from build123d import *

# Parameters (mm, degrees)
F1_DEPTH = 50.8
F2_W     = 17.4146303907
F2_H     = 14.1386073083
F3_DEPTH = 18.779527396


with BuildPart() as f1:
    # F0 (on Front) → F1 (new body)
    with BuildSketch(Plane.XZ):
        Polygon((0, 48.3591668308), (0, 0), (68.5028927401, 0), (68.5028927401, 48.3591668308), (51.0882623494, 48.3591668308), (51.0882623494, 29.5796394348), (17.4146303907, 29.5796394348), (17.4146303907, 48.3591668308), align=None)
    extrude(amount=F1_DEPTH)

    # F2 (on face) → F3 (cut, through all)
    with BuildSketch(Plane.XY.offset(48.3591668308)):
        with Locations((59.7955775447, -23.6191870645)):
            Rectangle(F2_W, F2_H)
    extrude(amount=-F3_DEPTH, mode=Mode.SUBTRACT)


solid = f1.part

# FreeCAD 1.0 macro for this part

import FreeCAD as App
import Part
import Sketcher

V = App.Vector
Q = App.Units.Quantity


def add_polygon(sketch, points):
    """Adds a closed chain of lines whose ends are joined by coincident constraints."""
    first, n = sketch.GeometryCount, len(points)
    for a, b in zip(points, points[1:] + points[:1]):
        sketch.addGeometry(Part.LineSegment(App.Vector(*a, 0), App.Vector(*b, 0)), False)
    for i in range(n):
        sketch.addConstraint(Sketcher.Constraint("Coincident", first + i, 2, first + (i + 1) % n, 1))

doc = App.newDocument("Part")
body = doc.addObject("PartDesign::Body", "Body")

# Sketch on XZ plane
sketch1 = body.newObject("Sketcher::SketchObject", "Sketch")
sketch1.AttachmentSupport = (doc.getObject("XZ_Plane"), [""])
sketch1.MapMode = "FlatFace"
add_polygon(sketch1, [(0, 48.359167), (0, 0), (68.502893, 0), (68.502893, 48.359167), (51.088262, 48.359167), (51.088262, 29.579639), (17.41463, 29.579639), (17.41463, 48.359167)])  # lines 0-7
sketch1.addConstraint(Sketcher.Constraint("Vertical", 0))
sketch1.addConstraint(Sketcher.Constraint("Horizontal", 1))
sketch1.addConstraint(Sketcher.Constraint("Vertical", 2))
sketch1.addConstraint(Sketcher.Constraint("Horizontal", 3))
sketch1.addConstraint(Sketcher.Constraint("Vertical", 4))
sketch1.addConstraint(Sketcher.Constraint("Horizontal", 5))
sketch1.addConstraint(Sketcher.Constraint("Vertical", 6))
sketch1.addConstraint(Sketcher.Constraint("Horizontal", 7))
sketch1.addConstraint(Sketcher.Constraint("Coincident", 0, 2, -1, 1))
sketch1.addConstraint(Sketcher.Constraint("Horizontal", 3, 2, 6, 2))
sketch1.addConstraint(Sketcher.Constraint("Equal", 3, 7))
sketch1.addConstraint(Sketcher.Constraint("DistanceX", 3, 2, 3, 1, Q("17.41463 mm")))
sketch1.addConstraint(Sketcher.Constraint("DistanceX", 5, 2, 5, 1, Q("33.673632 mm")))
sketch1.addConstraint(Sketcher.Constraint("DistanceY", 0, 2, 0, 1, Q("48.359167 mm")))
sketch1.addConstraint(Sketcher.Constraint("DistanceY", 4, 2, 4, 1, Q("18.779527 mm")))
pad1 = body.newObject("PartDesign::Pad", "Pad")
pad1.Profile = sketch1
pad1.Length = Q("2 in")

# Sketch on XY plane
sketch2 = body.newObject("Sketcher::SketchObject", "Sketch001")
sketch2.AttachmentSupport = (doc.getObject("XY_Plane"), [""])
sketch2.MapMode = "FlatFace"
sketch2.AttachmentOffset = App.Placement(V(0, 0, 48.359167), App.Rotation())
add_polygon(sketch2, [(51.088262, -16.549883), (51.088262, -30.688491), (68.502893, -30.688491), (68.502893, -16.549883)])  # lines 0-3
sketch2.addConstraint(Sketcher.Constraint("Vertical", 0))
sketch2.addConstraint(Sketcher.Constraint("Horizontal", 1))
sketch2.addConstraint(Sketcher.Constraint("Vertical", 2))
sketch2.addConstraint(Sketcher.Constraint("Horizontal", 3))
sketch2.addConstraint(Sketcher.Constraint("DistanceX", 1, 1, 1, 2, Q("17.41463 mm")))
sketch2.addConstraint(Sketcher.Constraint("DistanceY", 0, 2, 0, 1, Q("14.138607 mm")))
sketch2.addConstraint(Sketcher.Constraint("DistanceY", 0, 2, -1, 1, Q("30.688491 mm")))
sketch2.addConstraint(Sketcher.Constraint("DistanceX", -1, 1, 0, 2, Q("51.088262 mm")))
pocket1 = body.newObject("PartDesign::Pocket", "Pocket")
pocket1.Profile = sketch2
pocket1.Length = 18.779527

doc.recompute()
